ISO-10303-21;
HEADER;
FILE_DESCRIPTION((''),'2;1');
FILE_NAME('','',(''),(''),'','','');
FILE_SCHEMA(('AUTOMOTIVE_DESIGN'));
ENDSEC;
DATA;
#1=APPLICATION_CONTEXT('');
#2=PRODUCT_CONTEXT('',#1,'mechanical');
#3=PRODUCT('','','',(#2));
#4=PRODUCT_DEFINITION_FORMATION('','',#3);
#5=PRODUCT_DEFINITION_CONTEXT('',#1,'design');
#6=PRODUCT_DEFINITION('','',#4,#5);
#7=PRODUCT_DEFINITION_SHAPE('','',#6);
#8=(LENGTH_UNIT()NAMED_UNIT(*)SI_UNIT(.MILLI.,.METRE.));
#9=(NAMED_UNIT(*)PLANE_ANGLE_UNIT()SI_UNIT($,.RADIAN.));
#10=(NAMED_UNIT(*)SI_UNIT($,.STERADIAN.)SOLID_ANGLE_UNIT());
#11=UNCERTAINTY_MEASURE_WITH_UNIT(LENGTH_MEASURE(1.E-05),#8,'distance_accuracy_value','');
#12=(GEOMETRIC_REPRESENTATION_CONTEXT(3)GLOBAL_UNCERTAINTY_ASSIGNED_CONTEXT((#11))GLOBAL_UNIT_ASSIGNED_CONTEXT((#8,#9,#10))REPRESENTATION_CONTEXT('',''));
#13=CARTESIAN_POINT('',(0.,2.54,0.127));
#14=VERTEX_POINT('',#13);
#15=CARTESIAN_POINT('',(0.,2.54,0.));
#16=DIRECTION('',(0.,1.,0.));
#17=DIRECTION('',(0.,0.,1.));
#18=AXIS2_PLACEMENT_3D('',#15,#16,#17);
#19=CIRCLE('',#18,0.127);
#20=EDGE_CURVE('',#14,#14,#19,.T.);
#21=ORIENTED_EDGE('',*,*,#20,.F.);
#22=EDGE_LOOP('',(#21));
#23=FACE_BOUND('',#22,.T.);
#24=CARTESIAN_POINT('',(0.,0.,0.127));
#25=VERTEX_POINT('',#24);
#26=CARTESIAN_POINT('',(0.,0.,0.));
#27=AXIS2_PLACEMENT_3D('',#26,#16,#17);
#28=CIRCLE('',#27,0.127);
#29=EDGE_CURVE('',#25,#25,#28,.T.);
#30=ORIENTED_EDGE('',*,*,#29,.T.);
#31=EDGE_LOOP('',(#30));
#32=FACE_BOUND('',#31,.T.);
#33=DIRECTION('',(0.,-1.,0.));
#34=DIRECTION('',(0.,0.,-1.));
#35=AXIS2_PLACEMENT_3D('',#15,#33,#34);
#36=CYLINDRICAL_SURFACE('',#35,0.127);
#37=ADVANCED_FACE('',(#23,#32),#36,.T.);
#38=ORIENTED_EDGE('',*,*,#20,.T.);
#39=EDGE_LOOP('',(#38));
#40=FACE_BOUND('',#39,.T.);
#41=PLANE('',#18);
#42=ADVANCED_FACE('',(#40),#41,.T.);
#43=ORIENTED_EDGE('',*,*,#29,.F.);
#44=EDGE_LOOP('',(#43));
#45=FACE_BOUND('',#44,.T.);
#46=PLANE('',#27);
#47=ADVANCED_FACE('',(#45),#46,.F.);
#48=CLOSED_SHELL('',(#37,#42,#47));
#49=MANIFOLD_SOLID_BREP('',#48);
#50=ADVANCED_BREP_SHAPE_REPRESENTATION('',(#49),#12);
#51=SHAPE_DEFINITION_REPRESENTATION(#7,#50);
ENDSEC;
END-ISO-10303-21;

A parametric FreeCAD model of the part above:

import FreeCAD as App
import Part
import Sketcher
Q = App.Units.Quantity

doc = App.newDocument("Part")
params = doc.addObject("Spreadsheet::Sheet", "Params")
for row, (alias, value) in enumerate([
    ("sketch1_diameter", "0.01 in"),
    ("pad1_length", "0.1 in"),
], start=1):
    params.set(f"A{row}", alias)
    params.set(f"B{row}", "=" + value)
    params.setAlias(f"B{row}", alias)

body = doc.addObject("PartDesign::Body", "Body")

# Sketch on XZ plane
sketch1 = doc.addObject("Sketcher::SketchObject", "Sketch")
body.addObject(sketch1)
sketch1.AttachmentSupport = (doc.XZ_Plane, [""])
sketch1.MapMode = "FlatFace"
sketch1.addGeometry(Part.Circle(App.Vector(0, 0, 0), App.Vector(0, 0, 1), 0.13), False)
sketch1.addConstraint([
    Sketcher.Constraint("Coincident", 0, 3, -1, 1),
    Sketcher.Constraint("Diameter", 0, Q("0.01 in")),
])
sketch1.setExpression("Constraints[1]", "Params.sketch1_diameter")
pad1 = doc.addObject("PartDesign::Pad", "Pad")
body.addObject(pad1)
pad1.Profile = sketch1
pad1.setExpression("Length", "Params.pad1_length")
pad1.Reversed = True

doc.recompute()
